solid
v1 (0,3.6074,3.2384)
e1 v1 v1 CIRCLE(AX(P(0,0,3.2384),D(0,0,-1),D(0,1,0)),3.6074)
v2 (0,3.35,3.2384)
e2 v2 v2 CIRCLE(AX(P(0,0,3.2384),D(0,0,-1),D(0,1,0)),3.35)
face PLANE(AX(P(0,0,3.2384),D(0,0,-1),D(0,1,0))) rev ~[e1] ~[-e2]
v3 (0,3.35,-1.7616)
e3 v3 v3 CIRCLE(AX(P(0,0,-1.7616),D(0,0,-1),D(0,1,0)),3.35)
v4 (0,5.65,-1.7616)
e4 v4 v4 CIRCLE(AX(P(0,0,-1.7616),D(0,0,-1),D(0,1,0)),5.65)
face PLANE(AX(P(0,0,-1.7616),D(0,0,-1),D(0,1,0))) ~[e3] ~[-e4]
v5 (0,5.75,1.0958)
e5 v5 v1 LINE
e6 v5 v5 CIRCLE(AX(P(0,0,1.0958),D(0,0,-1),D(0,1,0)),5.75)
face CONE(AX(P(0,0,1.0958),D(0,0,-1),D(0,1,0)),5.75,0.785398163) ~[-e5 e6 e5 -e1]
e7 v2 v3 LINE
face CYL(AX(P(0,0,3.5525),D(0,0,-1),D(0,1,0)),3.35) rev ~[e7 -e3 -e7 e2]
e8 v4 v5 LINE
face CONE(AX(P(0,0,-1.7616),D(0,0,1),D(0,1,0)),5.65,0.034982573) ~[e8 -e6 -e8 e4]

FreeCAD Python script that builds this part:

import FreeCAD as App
import Part
import Sketcher

V = App.Vector
Q = App.Units.Quantity

doc = App.newDocument("Part")
body = doc.addObject("PartDesign::Body", "Body")

sketch1 = body.newObject("Sketcher::SketchObject", "Sketch")
sketch1.AttachmentSupport = (doc.getObject("YZ_Plane"), [""])
sketch1.MapMode = "FlatFace"
sketch1.addGeometry(Part.LineSegment(V(3.61, 3.24, 0), V(3.35, 3.24, 0)), False)
sketch1.addGeometry(Part.LineSegment(V(3.35, 3.24, 0), V(3.35, -1.76, 0)), False)
sketch1.addGeometry(Part.LineSegment(V(3.35, -1.76, 0), V(5.65, -1.76, 0)), False)
sketch1.addGeometry(Part.LineSegment(V(5.65, -1.76, 0), V(5.75, 1.1, 0)), False)
sketch1.addGeometry(Part.LineSegment(V(5.75, 1.1, 0), V(3.61, 3.24, 0)), False)
sketch1.addConstraint(Sketcher.Constraint("Coincident", 0, 2, 1, 1))
sketch1.addConstraint(Sketcher.Constraint("Coincident", 1, 2, 2, 1))
sketch1.addConstraint(Sketcher.Constraint("Coincident", 2, 2, 3, 1))
sketch1.addConstraint(Sketcher.Constraint("Coincident", 3, 2, 4, 1))
sketch1.addConstraint(Sketcher.Constraint("Coincident", 4, 2, 0, 1))
sketch1.addConstraint(Sketcher.Constraint("Horizontal", 0))
sketch1.addConstraint(Sketcher.Constraint("Vertical", 1))
sketch1.addConstraint(Sketcher.Constraint("Horizontal", 2))
sketch1.addConstraint(Sketcher.Constraint("DistanceY", 1, 2, 1, 1, Q("5 mm")))
sketch1.addConstraint(Sketcher.Constraint("DistanceX", -1, 1, 0, 2, Q("3.35 mm")))
sketch1.addConstraint(Sketcher.Constraint("DistanceX", -1, 1, 2, 2, Q("5.65 mm")))
sketch1.addConstraint(Sketcher.Constraint("DistanceX", -1, 1, 3, 2, Q("5.75 mm")))
sketch1.addConstraint(Sketcher.Constraint("Angle", 4, Q("135 deg")))
sketch1.addConstraint(Sketcher.Constraint("Distance", 4, Q("3.03 mm")))
sketch1.addConstraint(Sketcher.Constraint("DistanceY", -1, 1, 0, 2, Q("3.2384 mm")))
revolution = body.newObject("PartDesign::Revolution", "Revolution")
revolution.Profile = sketch1
revolution.ReferenceAxis = (sketch1, ["V_Axis"])
revolution.Angle = 360

doc.recompute()
